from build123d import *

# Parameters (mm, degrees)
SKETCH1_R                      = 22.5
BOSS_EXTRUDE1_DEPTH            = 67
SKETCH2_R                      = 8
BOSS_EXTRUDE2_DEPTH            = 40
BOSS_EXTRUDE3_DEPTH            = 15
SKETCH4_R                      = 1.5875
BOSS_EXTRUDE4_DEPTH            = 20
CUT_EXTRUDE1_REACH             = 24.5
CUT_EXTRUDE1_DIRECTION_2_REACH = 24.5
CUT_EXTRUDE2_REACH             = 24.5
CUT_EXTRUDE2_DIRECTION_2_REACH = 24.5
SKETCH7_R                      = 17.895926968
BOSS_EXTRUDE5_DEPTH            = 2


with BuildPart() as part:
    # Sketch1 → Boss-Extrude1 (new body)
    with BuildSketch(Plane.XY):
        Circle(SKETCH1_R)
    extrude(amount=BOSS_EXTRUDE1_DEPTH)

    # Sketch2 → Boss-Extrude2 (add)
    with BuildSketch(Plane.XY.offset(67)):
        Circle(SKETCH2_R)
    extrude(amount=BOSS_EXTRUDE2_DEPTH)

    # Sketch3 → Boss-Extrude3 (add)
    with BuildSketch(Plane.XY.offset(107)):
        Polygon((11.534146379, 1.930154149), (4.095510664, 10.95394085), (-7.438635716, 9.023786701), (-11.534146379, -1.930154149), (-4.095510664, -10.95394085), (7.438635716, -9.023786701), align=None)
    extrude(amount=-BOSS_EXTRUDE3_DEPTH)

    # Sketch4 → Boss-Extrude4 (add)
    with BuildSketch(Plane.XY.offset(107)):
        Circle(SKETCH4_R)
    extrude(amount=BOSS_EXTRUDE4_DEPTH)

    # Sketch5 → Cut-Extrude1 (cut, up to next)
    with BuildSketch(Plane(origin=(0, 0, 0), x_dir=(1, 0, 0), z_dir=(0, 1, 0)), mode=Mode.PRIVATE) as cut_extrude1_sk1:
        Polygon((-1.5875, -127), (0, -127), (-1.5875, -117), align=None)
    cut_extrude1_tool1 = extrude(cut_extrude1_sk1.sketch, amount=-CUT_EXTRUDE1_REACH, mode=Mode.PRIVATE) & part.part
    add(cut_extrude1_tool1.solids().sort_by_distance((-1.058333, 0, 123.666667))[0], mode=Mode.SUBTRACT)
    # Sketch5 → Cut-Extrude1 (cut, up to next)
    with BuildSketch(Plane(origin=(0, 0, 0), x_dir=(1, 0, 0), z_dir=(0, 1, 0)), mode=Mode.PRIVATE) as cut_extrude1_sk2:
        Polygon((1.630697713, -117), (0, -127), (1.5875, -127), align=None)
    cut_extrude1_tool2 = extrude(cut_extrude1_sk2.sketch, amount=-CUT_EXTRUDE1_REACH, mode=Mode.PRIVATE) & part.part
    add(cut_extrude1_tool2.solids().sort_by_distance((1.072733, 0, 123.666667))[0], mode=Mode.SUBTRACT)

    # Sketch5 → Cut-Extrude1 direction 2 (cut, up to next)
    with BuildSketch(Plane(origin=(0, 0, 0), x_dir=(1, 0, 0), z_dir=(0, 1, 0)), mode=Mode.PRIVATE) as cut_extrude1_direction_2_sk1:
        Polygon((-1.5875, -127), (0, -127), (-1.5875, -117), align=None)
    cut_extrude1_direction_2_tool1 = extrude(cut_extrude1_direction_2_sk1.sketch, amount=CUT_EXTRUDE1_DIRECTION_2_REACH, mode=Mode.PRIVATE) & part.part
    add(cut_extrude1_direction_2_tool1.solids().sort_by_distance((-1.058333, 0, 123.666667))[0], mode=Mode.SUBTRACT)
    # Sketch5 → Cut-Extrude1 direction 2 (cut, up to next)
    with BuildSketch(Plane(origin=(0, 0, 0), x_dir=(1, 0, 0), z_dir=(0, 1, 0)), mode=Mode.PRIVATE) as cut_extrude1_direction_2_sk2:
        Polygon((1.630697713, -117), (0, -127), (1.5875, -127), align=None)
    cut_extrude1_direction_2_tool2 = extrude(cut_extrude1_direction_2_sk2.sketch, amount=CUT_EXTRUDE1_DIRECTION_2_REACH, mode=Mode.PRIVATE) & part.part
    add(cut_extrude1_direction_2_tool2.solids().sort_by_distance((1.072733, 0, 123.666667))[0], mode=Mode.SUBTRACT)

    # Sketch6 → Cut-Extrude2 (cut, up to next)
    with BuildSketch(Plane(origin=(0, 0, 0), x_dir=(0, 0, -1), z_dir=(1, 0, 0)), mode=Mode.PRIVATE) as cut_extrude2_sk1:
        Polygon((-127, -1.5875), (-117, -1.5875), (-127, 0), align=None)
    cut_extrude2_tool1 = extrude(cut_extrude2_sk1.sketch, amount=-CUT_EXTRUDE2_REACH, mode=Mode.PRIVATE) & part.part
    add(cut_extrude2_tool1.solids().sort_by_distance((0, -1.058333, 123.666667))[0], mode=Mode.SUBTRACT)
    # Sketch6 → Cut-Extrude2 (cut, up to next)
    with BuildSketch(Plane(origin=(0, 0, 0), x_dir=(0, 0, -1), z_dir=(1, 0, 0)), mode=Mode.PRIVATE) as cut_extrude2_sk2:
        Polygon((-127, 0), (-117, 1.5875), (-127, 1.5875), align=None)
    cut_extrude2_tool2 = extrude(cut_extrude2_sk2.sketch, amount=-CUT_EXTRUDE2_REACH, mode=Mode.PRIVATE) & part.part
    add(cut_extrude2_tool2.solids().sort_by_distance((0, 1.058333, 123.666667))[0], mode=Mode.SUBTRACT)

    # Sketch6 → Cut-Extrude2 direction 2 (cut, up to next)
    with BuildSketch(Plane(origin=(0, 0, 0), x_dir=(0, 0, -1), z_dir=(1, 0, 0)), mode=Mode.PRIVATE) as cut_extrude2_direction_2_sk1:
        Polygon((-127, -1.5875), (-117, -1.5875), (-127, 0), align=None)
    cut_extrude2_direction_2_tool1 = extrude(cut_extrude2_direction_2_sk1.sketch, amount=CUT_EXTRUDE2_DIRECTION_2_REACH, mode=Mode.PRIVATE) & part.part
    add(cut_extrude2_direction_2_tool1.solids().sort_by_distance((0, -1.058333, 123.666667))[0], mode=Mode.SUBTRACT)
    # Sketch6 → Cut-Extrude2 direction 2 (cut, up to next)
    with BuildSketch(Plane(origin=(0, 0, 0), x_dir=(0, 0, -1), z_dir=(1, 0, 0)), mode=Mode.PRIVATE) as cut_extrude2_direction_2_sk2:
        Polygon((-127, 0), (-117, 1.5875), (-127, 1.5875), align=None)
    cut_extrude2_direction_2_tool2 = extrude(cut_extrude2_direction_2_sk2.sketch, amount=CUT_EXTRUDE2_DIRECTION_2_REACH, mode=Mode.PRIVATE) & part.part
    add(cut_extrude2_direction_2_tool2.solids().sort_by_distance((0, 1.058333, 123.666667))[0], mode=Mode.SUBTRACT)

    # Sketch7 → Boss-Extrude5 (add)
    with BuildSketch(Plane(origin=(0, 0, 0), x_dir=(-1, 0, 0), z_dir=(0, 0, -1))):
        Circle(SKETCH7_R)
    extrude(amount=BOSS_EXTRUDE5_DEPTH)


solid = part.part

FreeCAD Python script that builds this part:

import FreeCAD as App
import Part
import Sketcher
from FreeCAD import Vector
Q = App.Units.Quantity

doc = App.newDocument("Part")
body = doc.addObject("PartDesign::Body", "Body")

# Sketch on XY plane
sketch1 = body.newObject("Sketcher::SketchObject", "Sketch")
sketch1.AttachmentSupport = (doc.getObject("XY_Plane"), [""])
sketch1.MapMode = "FlatFace"
sketch1.addGeometry(Part.Circle(Vector(0, 0, 0), Vector(0, 0, 1), 22.5), False)
sketch1.addConstraint([
    Sketcher.Constraint("Coincident", 0, 3, -1, 1),
    Sketcher.Constraint("Diameter", 0, 45.0),
])
pad1 = body.newObject("PartDesign::Pad", "Pad")
pad1.Profile = sketch1
pad1.Length = 67

# Sketch on XY plane
sketch2 = body.newObject("Sketcher::SketchObject", "Sketch001")
sketch2.AttachmentSupport = (doc.getObject("XY_Plane"), [""])
sketch2.MapMode = "FlatFace"
sketch2.AttachmentOffset = App.Placement(Vector(0, 0, 67), App.Rotation())
sketch2.addGeometry(Part.Circle(Vector(0, 0, 0), Vector(0, 0, 1), 8), False)
sketch2.addConstraint([
    Sketcher.Constraint("Coincident", 0, 3, -1, 1),
    Sketcher.Constraint("Diameter", 0, 16.0),
])
pad2 = body.newObject("PartDesign::Pad", "Pad001")
pad2.Profile = sketch2
pad2.Length = 40

# Sketch on XY plane
sketch3 = body.newObject("Sketcher::SketchObject", "Sketch002")
sketch3.AttachmentSupport = (doc.getObject("XY_Plane"), [""])
sketch3.MapMode = "FlatFace"
sketch3.AttachmentOffset = App.Placement(Vector(0, 0, 107), App.Rotation())
sketch3.addGeometry([
    Part.LineSegment(Vector(11.534146, 1.930154, 0), Vector(4.095511, 10.953941, 0)),  # 0
    Part.LineSegment(Vector(4.095511, 10.953941, 0), Vector(-7.438636, 9.023787, 0)),  # 1
    Part.LineSegment(Vector(-7.438636, 9.023787, 0), Vector(-11.534146, -1.930154, 0)),  # 2
    Part.LineSegment(Vector(-11.534146, -1.930154, 0), Vector(-4.095511, -10.953941, 0)),  # 3
    Part.LineSegment(Vector(-4.095511, -10.953941, 0), Vector(7.438636, -9.023787, 0)),  # 4
    Part.LineSegment(Vector(7.438636, -9.023787, 0), Vector(11.534146, 1.930154, 0)),  # 5
], False)
sketch3.addConstraint([
    Sketcher.Constraint("Coincident", 0, 2, 1, 1),
    Sketcher.Constraint("Coincident", 1, 2, 2, 1),
    Sketcher.Constraint("Coincident", 2, 2, 3, 1),
    Sketcher.Constraint("Coincident", 3, 2, 4, 1),
    Sketcher.Constraint("Coincident", 4, 2, 5, 1),
    Sketcher.Constraint("Coincident", 5, 2, 0, 1),
    Sketcher.Constraint("Symmetric", 0, 2, 3, 2, -1, 1),
    Sketcher.Constraint("Symmetric", 1, 2, 4, 2, -1, 1),
    Sketcher.Constraint("Symmetric", 2, 2, 5, 2, -1, 1),
    Sketcher.Constraint("Equal", 0, 1),
    Sketcher.Constraint("Equal", 1, 2),
    Sketcher.Constraint("Angle", 0, Q("129.5 deg")),
    Sketcher.Constraint("Angle", 1, Q("-170.5 deg")),
    Sketcher.Constraint("Angle", 2, Q("-110.5 deg")),
    Sketcher.Constraint("Distance", 0, 11.69453),
])
pad3 = body.newObject("PartDesign::Pad", "Pad002")
pad3.Profile = sketch3
pad3.Length = 15
pad3.Reversed = True

# Sketch on XY plane
sketch4 = body.newObject("Sketcher::SketchObject", "Sketch003")
sketch4.AttachmentSupport = (doc.getObject("XY_Plane"), [""])
sketch4.MapMode = "FlatFace"
sketch4.AttachmentOffset = App.Placement(Vector(0, 0, 107), App.Rotation())
sketch4.addGeometry(Part.Circle(Vector(0, 0, 0), Vector(0, 0, 1), 1.5875), False)
sketch4.addConstraint([
    Sketcher.Constraint("Coincident", 0, 3, -1, 1),
    Sketcher.Constraint("Diameter", 0, 3.175),
])
pad4 = body.newObject("PartDesign::Pad", "Pad003")
pad4.Profile = sketch4
pad4.Length = 20

# Sketch on XZ plane
sketch5 = body.newObject("Sketcher::SketchObject", "Sketch004")
sketch5.AttachmentSupport = (doc.getObject("XZ_Plane"), [""])
sketch5.MapMode = "FlatFace"
sketch5.addGeometry([
    Part.LineSegment(Vector(-1.5875, 127, 0), Vector(0, 127, 0)),
    Part.LineSegment(Vector(0, 127, 0), Vector(-1.5875, 117, 0)),
    Part.LineSegment(Vector(-1.5875, 117, 0), Vector(-1.5875, 127, 0)),
], False)
sketch5.addConstraint([
    Sketcher.Constraint("Coincident", 0, 2, 1, 1),
    Sketcher.Constraint("Coincident", 1, 2, 2, 1),
    Sketcher.Constraint("Coincident", 2, 2, 0, 1),
    Sketcher.Constraint("Horizontal", 0),
    Sketcher.Constraint("Vertical", 2),
    Sketcher.Constraint("PointOnObject", 0, 2, -2),
    Sketcher.Constraint("DistanceY", 2, 1, 2, 2, 10.0),
    Sketcher.Constraint("DistanceY", -1, 1, 0, 2, 127.0),
    Sketcher.Constraint("DistanceX", 0, 1, 0, 2, 1.5875),
])
pocket1 = body.newObject("PartDesign::Pocket", "Pocket")
pocket1.Profile = sketch5
pocket1.Length = 1.5875
pocket1.Reversed = True

# Sketch on XZ plane
sketch6 = body.newObject("Sketcher::SketchObject", "Sketch005")
sketch6.AttachmentSupport = (doc.getObject("XZ_Plane"), [""])
sketch6.MapMode = "FlatFace"
sketch6.addGeometry([
    Part.LineSegment(Vector(1.630698, 117, 0), Vector(0, 127, 0)),
    Part.LineSegment(Vector(0, 127, 0), Vector(1.5875, 127, 0)),
    Part.LineSegment(Vector(1.5875, 127, 0), Vector(1.630698, 117, 0)),
], False)
sketch6.addConstraint([
    Sketcher.Constraint("Coincident", 0, 2, 1, 1),
    Sketcher.Constraint("Coincident", 1, 2, 2, 1),
    Sketcher.Constraint("Coincident", 2, 2, 0, 1),
    Sketcher.Constraint("Horizontal", 1),
    Sketcher.Constraint("PointOnObject", 0, 2, -2),
    Sketcher.Constraint("DistanceY", -1, 1, 0, 2, 127.0),
    Sketcher.Constraint("DistanceY", -1, 1, 2, 2, 117.0),
    Sketcher.Constraint("DistanceX", 1, 1, 1, 2, 1.5875),
    Sketcher.Constraint("Distance", 0, 10.132086),
])
pocket2 = body.newObject("PartDesign::Pocket", "Pocket001")
pocket2.Profile = sketch6
pocket2.Length = 1.5875
pocket2.Reversed = True

# Sketch on XZ plane
sketch7 = body.newObject("Sketcher::SketchObject", "Sketch006")
sketch7.AttachmentSupport = (doc.getObject("XZ_Plane"), [""])
sketch7.MapMode = "FlatFace"
sketch7.addGeometry([
    Part.LineSegment(Vector(-1.5875, 127, 0), Vector(0, 127, 0)),
    Part.LineSegment(Vector(0, 127, 0), Vector(-1.5875, 117, 0)),
    Part.LineSegment(Vector(-1.5875, 117, 0), Vector(-1.5875, 127, 0)),
], False)
sketch7.addConstraint([
    Sketcher.Constraint("Coincident", 0, 2, 1, 1),
    Sketcher.Constraint("Coincident", 1, 2, 2, 1),
    Sketcher.Constraint("Coincident", 2, 2, 0, 1),
    Sketcher.Constraint("Horizontal", 0),
    Sketcher.Constraint("Vertical", 2),
    Sketcher.Constraint("PointOnObject", 0, 2, -2),
    Sketcher.Constraint("DistanceY", 2, 1, 2, 2, 10.0),
    Sketcher.Constraint("DistanceY", -1, 1, 0, 2, 127.0),
    Sketcher.Constraint("DistanceX", 0, 1, 0, 2, 1.5875),
])
pocket3 = body.newObject("PartDesign::Pocket", "Pocket002")
pocket3.Profile = sketch7
pocket3.Length = 1.5875

# Sketch on XZ plane
sketch8 = body.newObject("Sketcher::SketchObject", "Sketch007")
sketch8.AttachmentSupport = (doc.getObject("XZ_Plane"), [""])
sketch8.MapMode = "FlatFace"
sketch8.addGeometry([
    Part.LineSegment(Vector(1.630698, 117, 0), Vector(0, 127, 0)),
    Part.LineSegment(Vector(0, 127, 0), Vector(1.5875, 127, 0)),
    Part.LineSegment(Vector(1.5875, 127, 0), Vector(1.630698, 117, 0)),
], False)
sketch8.addConstraint([
    Sketcher.Constraint("Coincident", 0, 2, 1, 1),
    Sketcher.Constraint("Coincident", 1, 2, 2, 1),
    Sketcher.Constraint("Coincident", 2, 2, 0, 1),
    Sketcher.Constraint("Horizontal", 1),
    Sketcher.Constraint("PointOnObject", 0, 2, -2),
    Sketcher.Constraint("DistanceY", -1, 1, 0, 2, 127.0),
    Sketcher.Constraint("DistanceY", -1, 1, 2, 2, 117.0),
    Sketcher.Constraint("DistanceX", 1, 1, 1, 2, 1.5875),
    Sketcher.Constraint("Distance", 0, 10.132086),
])
pocket4 = body.newObject("PartDesign::Pocket", "Pocket003")
pocket4.Profile = sketch8
pocket4.Length = 1.5875

# Sketch on YZ plane
sketch9 = body.newObject("Sketcher::SketchObject", "Sketch008")
sketch9.AttachmentSupport = (doc.getObject("YZ_Plane"), [""])
sketch9.MapMode = "FlatFace"
sketch9.addGeometry([
    Part.LineSegment(Vector(-1.5875, 127, 0), Vector(-1.5875, 117, 0)),
    Part.LineSegment(Vector(-1.5875, 117, 0), Vector(0, 127, 0)),
    Part.LineSegment(Vector(0, 127, 0), Vector(-1.5875, 127, 0)),
], False)
sketch9.addConstraint([
    Sketcher.Constraint("Coincident", 0, 2, 1, 1),
    Sketcher.Constraint("Coincident", 1, 2, 2, 1),
    Sketcher.Constraint("Coincident", 2, 2, 0, 1),
    Sketcher.Constraint("Vertical", 0),
    Sketcher.Constraint("Horizontal", 2),
    Sketcher.Constraint("PointOnObject", 1, 2, -2),
    Sketcher.Constraint("DistanceY", 0, 2, 0, 1, 10.0),
    Sketcher.Constraint("DistanceY", -1, 1, 0, 2, 117.0),
    Sketcher.Constraint("DistanceX", 2, 2, 2, 1, 1.5875),
])
pocket5 = body.newObject("PartDesign::Pocket", "Pocket004")
pocket5.Profile = sketch9
pocket5.Length = 1.122532

# Sketch on YZ plane
sketch10 = body.newObject("Sketcher::SketchObject", "Sketch009")
sketch10.AttachmentSupport = (doc.getObject("YZ_Plane"), [""])
sketch10.MapMode = "FlatFace"
sketch10.addGeometry([
    Part.LineSegment(Vector(0, 127, 0), Vector(1.5875, 117, 0)),
    Part.LineSegment(Vector(1.5875, 117, 0), Vector(1.5875, 127, 0)),
    Part.LineSegment(Vector(1.5875, 127, 0), Vector(0, 127, 0)),
], False)
sketch10.addConstraint([
    Sketcher.Constraint("Coincident", 0, 2, 1, 1),
    Sketcher.Constraint("Coincident", 1, 2, 2, 1),
    Sketcher.Constraint("Coincident", 2, 2, 0, 1),
    Sketcher.Constraint("Vertical", 1),
    Sketcher.Constraint("Horizontal", 2),
    Sketcher.Constraint("PointOnObject", 2, 2, -2),
    Sketcher.Constraint("DistanceY", 1, 1, 1, 2, 10.0),
    Sketcher.Constraint("DistanceY", -1, 1, 0, 2, 117.0),
    Sketcher.Constraint("DistanceX", 2, 2, 2, 1, 1.5875),
])
pocket6 = body.newObject("PartDesign::Pocket", "Pocket005")
pocket6.Profile = sketch10
pocket6.Length = 1.122532

# Sketch on YZ plane
sketch11 = body.newObject("Sketcher::SketchObject", "Sketch010")
sketch11.AttachmentSupport = (doc.getObject("YZ_Plane"), [""])
sketch11.MapMode = "FlatFace"
sketch11.addGeometry([
    Part.LineSegment(Vector(-1.5875, 127, 0), Vector(-1.5875, 117, 0)),
    Part.LineSegment(Vector(-1.5875, 117, 0), Vector(0, 127, 0)),
    Part.LineSegment(Vector(0, 127, 0), Vector(-1.5875, 127, 0)),
], False)
sketch11.addConstraint([
    Sketcher.Constraint("Coincident", 0, 2, 1, 1),
    Sketcher.Constraint("Coincident", 1, 2, 2, 1),
    Sketcher.Constraint("Coincident", 2, 2, 0, 1),
    Sketcher.Constraint("Vertical", 0),
    Sketcher.Constraint("Horizontal", 2),
    Sketcher.Constraint("PointOnObject", 1, 2, -2),
    Sketcher.Constraint("DistanceY", 0, 2, 0, 1, 10.0),
    Sketcher.Constraint("DistanceY", -1, 1, 0, 2, 117.0),
    Sketcher.Constraint("DistanceX", 2, 2, 2, 1, 1.5875),
])
pocket7 = body.newObject("PartDesign::Pocket", "Pocket006")
pocket7.Profile = sketch11
pocket7.Length = 1.137497
pocket7.Reversed = True

# Sketch on YZ plane
sketch12 = body.newObject("Sketcher::SketchObject", "Sketch011")
sketch12.AttachmentSupport = (doc.getObject("YZ_Plane"), [""])
sketch12.MapMode = "FlatFace"
sketch12.addGeometry([
    Part.LineSegment(Vector(0, 127, 0), Vector(1.5875, 117, 0)),
    Part.LineSegment(Vector(1.5875, 117, 0), Vector(1.5875, 127, 0)),
    Part.LineSegment(Vector(1.5875, 127, 0), Vector(0, 127, 0)),
], False)
sketch12.addConstraint([
    Sketcher.Constraint("Coincident", 0, 2, 1, 1),
    Sketcher.Constraint("Coincident", 1, 2, 2, 1),
    Sketcher.Constraint("Coincident", 2, 2, 0, 1),
    Sketcher.Constraint("Vertical", 1),
    Sketcher.Constraint("Horizontal", 2),
    Sketcher.Constraint("PointOnObject", 2, 2, -2),
    Sketcher.Constraint("DistanceY", 1, 1, 1, 2, 10.0),
    Sketcher.Constraint("DistanceY", -1, 1, 0, 2, 117.0),
    Sketcher.Constraint("DistanceX", 2, 2, 2, 1, 1.5875),
])
pocket8 = body.newObject("PartDesign::Pocket", "Pocket007")
pocket8.Profile = sketch12
pocket8.Length = 1.137497
pocket8.Reversed = True

# Sketch on XY plane
sketch13 = body.newObject("Sketcher::SketchObject", "Sketch012")
sketch13.AttachmentSupport = (doc.getObject("XY_Plane"), [""])
sketch13.MapMode = "FlatFace"
sketch13.addGeometry(Part.Circle(Vector(0, 0, 0), Vector(0, 0, 1), 17.895927), False)
sketch13.addConstraint([
    Sketcher.Constraint("Coincident", 0, 3, -1, 1),
    Sketcher.Constraint("Diameter", 0, 35.791854),
])
pad5 = body.newObject("PartDesign::Pad", "Pad004")
pad5.Profile = sketch13
pad5.Length = 2
pad5.Reversed = True

doc.recompute()
